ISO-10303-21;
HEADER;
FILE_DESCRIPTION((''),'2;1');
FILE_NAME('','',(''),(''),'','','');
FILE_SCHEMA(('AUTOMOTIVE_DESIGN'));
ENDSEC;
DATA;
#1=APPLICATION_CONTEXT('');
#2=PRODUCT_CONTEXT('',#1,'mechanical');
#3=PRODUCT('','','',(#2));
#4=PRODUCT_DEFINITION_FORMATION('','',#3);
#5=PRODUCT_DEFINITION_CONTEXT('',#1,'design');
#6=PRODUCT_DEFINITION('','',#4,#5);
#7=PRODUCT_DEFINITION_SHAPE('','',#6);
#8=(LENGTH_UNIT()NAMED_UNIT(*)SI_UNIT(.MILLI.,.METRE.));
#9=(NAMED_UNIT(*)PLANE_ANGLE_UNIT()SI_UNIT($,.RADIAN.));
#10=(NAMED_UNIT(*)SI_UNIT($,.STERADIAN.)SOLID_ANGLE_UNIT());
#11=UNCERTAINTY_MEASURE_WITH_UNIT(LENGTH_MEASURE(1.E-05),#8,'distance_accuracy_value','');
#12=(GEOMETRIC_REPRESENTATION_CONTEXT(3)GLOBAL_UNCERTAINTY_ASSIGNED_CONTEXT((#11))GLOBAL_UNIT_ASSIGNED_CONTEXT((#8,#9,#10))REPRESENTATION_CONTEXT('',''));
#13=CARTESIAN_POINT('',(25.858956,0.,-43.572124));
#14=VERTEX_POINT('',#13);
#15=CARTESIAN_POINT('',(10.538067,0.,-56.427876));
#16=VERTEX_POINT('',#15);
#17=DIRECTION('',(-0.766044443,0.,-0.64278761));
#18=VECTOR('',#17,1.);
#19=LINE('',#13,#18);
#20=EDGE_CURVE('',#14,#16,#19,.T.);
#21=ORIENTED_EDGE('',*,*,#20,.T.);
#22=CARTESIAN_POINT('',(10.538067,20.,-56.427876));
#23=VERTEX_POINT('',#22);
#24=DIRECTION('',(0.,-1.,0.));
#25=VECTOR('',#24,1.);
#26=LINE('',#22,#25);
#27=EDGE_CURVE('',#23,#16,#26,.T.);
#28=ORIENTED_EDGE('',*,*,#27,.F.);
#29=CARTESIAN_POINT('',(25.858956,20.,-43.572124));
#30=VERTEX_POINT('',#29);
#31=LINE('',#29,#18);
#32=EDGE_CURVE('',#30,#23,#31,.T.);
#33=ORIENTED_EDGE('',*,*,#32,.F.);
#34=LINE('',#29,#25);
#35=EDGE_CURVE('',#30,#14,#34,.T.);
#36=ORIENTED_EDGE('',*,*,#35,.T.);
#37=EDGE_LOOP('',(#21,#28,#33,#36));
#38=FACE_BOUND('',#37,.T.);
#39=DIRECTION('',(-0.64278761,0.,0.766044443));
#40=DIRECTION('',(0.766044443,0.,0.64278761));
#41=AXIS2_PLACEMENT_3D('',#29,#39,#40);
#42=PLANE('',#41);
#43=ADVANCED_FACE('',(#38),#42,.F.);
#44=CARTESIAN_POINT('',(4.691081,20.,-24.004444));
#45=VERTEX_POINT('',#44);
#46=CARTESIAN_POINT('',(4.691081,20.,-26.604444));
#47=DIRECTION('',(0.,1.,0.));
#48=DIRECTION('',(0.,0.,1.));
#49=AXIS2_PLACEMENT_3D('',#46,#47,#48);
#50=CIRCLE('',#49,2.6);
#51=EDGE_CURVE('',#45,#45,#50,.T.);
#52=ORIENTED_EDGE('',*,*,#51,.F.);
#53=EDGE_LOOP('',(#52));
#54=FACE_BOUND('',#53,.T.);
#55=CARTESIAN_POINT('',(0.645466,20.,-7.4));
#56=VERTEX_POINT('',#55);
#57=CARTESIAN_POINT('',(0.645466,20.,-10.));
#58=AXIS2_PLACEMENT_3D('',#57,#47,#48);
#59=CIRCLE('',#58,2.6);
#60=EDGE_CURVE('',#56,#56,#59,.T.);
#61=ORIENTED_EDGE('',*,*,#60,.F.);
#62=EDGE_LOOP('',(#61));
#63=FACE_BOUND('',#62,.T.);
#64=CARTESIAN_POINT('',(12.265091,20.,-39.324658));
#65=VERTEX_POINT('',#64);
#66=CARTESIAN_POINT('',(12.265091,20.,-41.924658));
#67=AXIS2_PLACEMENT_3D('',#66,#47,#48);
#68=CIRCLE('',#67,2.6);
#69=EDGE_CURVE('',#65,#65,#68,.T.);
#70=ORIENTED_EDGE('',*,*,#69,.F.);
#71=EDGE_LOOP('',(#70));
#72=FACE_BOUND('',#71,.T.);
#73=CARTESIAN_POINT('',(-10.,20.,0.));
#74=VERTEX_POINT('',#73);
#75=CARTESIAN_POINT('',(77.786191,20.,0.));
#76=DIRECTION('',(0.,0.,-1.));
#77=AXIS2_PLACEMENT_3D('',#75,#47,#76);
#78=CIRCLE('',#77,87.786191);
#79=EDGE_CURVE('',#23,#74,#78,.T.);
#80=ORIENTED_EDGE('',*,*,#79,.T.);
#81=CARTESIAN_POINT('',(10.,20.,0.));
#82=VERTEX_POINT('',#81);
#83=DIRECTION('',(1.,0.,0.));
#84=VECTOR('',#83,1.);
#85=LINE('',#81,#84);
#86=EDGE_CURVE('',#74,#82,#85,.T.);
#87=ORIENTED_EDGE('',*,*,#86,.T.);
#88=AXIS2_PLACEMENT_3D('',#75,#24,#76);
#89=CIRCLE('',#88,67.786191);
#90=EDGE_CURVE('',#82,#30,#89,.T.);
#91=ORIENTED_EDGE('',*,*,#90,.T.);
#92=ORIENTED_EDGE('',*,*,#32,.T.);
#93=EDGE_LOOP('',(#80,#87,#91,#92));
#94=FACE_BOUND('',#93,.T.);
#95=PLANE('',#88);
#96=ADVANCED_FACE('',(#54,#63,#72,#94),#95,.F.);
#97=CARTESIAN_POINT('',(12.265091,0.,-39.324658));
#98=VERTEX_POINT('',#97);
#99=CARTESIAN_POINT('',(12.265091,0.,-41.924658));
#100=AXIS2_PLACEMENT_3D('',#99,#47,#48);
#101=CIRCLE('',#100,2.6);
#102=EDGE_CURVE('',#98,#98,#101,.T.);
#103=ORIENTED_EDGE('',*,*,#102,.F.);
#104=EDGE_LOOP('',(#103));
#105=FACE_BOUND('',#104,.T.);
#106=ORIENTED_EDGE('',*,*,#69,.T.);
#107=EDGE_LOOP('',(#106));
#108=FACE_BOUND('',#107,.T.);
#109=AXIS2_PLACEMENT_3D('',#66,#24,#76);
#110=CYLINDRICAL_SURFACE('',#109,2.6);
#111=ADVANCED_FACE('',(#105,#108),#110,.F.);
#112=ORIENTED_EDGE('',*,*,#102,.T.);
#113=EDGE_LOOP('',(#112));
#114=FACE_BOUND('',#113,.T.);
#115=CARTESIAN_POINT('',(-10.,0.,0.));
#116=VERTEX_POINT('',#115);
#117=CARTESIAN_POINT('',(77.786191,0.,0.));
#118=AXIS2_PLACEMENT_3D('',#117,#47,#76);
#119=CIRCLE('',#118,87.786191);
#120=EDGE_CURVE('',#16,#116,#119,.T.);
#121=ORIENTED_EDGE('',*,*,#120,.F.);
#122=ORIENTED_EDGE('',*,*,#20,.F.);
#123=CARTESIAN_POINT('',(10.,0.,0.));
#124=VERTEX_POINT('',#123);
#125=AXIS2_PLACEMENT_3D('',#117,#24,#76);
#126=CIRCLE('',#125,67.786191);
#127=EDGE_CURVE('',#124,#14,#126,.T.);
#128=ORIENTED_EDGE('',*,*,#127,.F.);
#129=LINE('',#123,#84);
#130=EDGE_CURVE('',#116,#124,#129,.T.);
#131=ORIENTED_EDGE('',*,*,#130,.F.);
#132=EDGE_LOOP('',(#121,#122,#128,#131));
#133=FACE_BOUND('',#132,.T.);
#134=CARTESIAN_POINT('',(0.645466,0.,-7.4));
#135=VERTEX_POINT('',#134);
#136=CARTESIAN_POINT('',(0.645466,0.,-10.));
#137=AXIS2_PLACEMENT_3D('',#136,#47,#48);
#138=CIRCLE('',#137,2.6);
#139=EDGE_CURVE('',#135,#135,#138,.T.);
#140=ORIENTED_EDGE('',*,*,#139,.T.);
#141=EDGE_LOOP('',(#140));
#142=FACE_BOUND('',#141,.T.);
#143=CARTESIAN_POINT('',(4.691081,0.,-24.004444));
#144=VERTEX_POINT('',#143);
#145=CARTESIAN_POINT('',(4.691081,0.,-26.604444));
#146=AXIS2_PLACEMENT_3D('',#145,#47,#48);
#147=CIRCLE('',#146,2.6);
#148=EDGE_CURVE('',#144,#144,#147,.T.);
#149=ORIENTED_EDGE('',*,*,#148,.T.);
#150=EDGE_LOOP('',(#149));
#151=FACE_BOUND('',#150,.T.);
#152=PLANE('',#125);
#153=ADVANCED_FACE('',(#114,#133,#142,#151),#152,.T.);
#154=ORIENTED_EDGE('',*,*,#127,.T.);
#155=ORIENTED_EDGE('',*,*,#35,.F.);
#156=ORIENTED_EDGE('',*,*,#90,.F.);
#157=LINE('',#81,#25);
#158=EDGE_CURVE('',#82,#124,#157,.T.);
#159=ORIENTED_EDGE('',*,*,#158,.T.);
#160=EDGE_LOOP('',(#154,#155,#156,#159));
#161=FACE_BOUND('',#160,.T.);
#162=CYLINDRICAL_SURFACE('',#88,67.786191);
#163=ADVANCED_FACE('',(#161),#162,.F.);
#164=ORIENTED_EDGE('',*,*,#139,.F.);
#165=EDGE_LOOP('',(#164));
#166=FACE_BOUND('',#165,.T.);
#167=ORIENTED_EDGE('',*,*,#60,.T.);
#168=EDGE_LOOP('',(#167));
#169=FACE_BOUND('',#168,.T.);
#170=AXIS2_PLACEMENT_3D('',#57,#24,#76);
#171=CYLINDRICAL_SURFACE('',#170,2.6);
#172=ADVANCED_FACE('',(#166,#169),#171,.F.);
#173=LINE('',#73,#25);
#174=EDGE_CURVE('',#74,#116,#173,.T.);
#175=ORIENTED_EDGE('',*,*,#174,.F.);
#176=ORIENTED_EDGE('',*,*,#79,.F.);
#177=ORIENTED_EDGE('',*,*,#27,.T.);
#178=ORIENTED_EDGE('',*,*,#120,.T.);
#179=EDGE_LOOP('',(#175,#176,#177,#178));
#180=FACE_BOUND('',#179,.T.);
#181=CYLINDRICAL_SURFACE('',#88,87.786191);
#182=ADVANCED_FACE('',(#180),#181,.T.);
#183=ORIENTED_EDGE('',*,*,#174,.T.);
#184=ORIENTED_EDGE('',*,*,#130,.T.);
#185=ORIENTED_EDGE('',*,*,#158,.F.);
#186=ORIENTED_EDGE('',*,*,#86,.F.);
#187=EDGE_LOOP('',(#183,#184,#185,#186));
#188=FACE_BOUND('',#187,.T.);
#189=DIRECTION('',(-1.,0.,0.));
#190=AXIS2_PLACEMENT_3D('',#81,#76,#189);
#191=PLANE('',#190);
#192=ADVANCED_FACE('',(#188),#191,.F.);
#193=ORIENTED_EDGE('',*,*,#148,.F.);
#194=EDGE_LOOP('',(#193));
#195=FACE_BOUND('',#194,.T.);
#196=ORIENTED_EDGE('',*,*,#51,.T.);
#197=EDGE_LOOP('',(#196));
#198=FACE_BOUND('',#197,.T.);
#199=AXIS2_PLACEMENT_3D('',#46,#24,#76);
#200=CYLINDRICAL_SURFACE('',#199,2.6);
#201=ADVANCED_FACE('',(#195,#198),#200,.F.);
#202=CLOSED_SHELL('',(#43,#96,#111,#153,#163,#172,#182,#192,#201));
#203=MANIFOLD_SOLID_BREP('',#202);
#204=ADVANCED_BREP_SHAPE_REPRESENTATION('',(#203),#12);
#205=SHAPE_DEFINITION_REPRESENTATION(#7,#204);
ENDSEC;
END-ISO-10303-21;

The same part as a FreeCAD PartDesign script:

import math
import FreeCAD as App
import Part
import Sketcher
Q = App.Units.Quantity

doc = App.newDocument("Part")
params = doc.addObject("Spreadsheet::Sheet", "Params")
for row, (alias, value) in enumerate([
    ("sketch1_diameter", "5.2 mm"),
    ("sketch1_width", "20 mm"),
    ("pad1_length", "20 mm"),
], start=1):
    params.set(f"A{row}", alias)
    params.set(f"B{row}", "=" + value)
    params.setAlias(f"B{row}", alias)

body = doc.addObject("PartDesign::Body", "Body")

# Sketch on XZ plane
sketch1 = body.newObject("Sketcher::SketchObject", "Sketch")
sketch1.AttachmentSupport = (doc.getObject("XZ_Plane"), [""])
sketch1.MapMode = "FlatFace"
sketch1.addGeometry(Part.LineSegment(App.Vector(-10, 0, 0), App.Vector(10, 0, 0)), False)
sketch1.addGeometry(Part.ArcOfCircle(Part.Circle(App.Vector(77.786191, 0, 0), App.Vector(0, 0, 1), 67.786191), math.radians(180), math.radians(220)), False)
sketch1.addGeometry(Part.LineSegment(App.Vector(25.858956, -43.572124, 0), App.Vector(10.538067, -56.427876, 0)), False)
sketch1.addGeometry(Part.ArcOfCircle(Part.Circle(App.Vector(77.786191, 0, 0), App.Vector(0, 0, 1), 87.786191), math.radians(180), math.radians(220)), False)
sketch1.addGeometry(Part.Circle(App.Vector(0.645466, -10, 0), App.Vector(0, 0, 1), 2.6), False)
sketch1.addGeometry(Part.Circle(App.Vector(12.265091, -41.924658, 0), App.Vector(0, 0, 1), 2.6), False)
sketch1.addGeometry(Part.Circle(App.Vector(4.691081, -26.604444, 0), App.Vector(0, 0, 1), 2.6), False)
sketch1.addConstraint(Sketcher.Constraint("Coincident", 0, 2, 1, 1))
sketch1.addConstraint(Sketcher.Constraint("Coincident", 1, 2, 2, 1))
sketch1.addConstraint(Sketcher.Constraint("Coincident", 2, 2, 3, 2))
sketch1.addConstraint(Sketcher.Constraint("Coincident", 3, 1, 0, 1))
sketch1.addConstraint(Sketcher.Constraint("Horizontal", 0))
sketch1.addConstraint(Sketcher.Constraint("Coincident", 3, 3, 1, 3))
sketch1.addConstraint(Sketcher.Constraint("Equal", 4, 5))
sketch1.addConstraint(Sketcher.Constraint("Equal", 5, 6))
sketch1.addConstraint(Sketcher.Constraint("Symmetric", 0, 2, 3, 1, -1, 1))
sketch1.addConstraint(Sketcher.Constraint("PointOnObject", 1, 3, -1))
sketch1.addConstraint(Sketcher.Constraint("Diameter", 4, 5.2))
sketch1.addConstraint(Sketcher.Constraint("DistanceX", 0, 1, 0, 2, 20.0))
sketch1.addConstraint(Sketcher.Constraint("Angle", 2, Q("-140 deg")))
sketch1.addConstraint(Sketcher.Constraint("DistanceY", 4, 3, -1, 1, 10.0))
sketch1.addConstraint(Sketcher.Constraint("Radius", 1, 67.786191))
sketch1.addConstraint(Sketcher.Constraint("DistanceX", 5, 3, 1, 3, 65.5211))
sketch1.addConstraint(Sketcher.Constraint("DistanceX", 4, 3, 2, 2, 9.892602))
sketch1.addConstraint(Sketcher.Constraint("DistanceY", 5, 3, -1, 1, 41.924658))
sketch1.addConstraint(Sketcher.Constraint("DistanceX", -1, 1, 6, 3, 4.691081))
sketch1.addConstraint(Sketcher.Constraint("DistanceY", 1, 2, 6, 3, 16.96768))
sketch1.addConstraint(Sketcher.Constraint("DistanceX", -1, 1, 4, 3, 0.645466))
sketch1.setExpression("Constraints[10]", "Params.sketch1_diameter")
sketch1.setExpression("Constraints[11]", "Params.sketch1_width")
pad1 = body.newObject("PartDesign::Pad", "Pad")
pad1.Profile = sketch1
pad1.setExpression("Length", "Params.pad1_length")
pad1.Reversed = True

doc.recompute()
